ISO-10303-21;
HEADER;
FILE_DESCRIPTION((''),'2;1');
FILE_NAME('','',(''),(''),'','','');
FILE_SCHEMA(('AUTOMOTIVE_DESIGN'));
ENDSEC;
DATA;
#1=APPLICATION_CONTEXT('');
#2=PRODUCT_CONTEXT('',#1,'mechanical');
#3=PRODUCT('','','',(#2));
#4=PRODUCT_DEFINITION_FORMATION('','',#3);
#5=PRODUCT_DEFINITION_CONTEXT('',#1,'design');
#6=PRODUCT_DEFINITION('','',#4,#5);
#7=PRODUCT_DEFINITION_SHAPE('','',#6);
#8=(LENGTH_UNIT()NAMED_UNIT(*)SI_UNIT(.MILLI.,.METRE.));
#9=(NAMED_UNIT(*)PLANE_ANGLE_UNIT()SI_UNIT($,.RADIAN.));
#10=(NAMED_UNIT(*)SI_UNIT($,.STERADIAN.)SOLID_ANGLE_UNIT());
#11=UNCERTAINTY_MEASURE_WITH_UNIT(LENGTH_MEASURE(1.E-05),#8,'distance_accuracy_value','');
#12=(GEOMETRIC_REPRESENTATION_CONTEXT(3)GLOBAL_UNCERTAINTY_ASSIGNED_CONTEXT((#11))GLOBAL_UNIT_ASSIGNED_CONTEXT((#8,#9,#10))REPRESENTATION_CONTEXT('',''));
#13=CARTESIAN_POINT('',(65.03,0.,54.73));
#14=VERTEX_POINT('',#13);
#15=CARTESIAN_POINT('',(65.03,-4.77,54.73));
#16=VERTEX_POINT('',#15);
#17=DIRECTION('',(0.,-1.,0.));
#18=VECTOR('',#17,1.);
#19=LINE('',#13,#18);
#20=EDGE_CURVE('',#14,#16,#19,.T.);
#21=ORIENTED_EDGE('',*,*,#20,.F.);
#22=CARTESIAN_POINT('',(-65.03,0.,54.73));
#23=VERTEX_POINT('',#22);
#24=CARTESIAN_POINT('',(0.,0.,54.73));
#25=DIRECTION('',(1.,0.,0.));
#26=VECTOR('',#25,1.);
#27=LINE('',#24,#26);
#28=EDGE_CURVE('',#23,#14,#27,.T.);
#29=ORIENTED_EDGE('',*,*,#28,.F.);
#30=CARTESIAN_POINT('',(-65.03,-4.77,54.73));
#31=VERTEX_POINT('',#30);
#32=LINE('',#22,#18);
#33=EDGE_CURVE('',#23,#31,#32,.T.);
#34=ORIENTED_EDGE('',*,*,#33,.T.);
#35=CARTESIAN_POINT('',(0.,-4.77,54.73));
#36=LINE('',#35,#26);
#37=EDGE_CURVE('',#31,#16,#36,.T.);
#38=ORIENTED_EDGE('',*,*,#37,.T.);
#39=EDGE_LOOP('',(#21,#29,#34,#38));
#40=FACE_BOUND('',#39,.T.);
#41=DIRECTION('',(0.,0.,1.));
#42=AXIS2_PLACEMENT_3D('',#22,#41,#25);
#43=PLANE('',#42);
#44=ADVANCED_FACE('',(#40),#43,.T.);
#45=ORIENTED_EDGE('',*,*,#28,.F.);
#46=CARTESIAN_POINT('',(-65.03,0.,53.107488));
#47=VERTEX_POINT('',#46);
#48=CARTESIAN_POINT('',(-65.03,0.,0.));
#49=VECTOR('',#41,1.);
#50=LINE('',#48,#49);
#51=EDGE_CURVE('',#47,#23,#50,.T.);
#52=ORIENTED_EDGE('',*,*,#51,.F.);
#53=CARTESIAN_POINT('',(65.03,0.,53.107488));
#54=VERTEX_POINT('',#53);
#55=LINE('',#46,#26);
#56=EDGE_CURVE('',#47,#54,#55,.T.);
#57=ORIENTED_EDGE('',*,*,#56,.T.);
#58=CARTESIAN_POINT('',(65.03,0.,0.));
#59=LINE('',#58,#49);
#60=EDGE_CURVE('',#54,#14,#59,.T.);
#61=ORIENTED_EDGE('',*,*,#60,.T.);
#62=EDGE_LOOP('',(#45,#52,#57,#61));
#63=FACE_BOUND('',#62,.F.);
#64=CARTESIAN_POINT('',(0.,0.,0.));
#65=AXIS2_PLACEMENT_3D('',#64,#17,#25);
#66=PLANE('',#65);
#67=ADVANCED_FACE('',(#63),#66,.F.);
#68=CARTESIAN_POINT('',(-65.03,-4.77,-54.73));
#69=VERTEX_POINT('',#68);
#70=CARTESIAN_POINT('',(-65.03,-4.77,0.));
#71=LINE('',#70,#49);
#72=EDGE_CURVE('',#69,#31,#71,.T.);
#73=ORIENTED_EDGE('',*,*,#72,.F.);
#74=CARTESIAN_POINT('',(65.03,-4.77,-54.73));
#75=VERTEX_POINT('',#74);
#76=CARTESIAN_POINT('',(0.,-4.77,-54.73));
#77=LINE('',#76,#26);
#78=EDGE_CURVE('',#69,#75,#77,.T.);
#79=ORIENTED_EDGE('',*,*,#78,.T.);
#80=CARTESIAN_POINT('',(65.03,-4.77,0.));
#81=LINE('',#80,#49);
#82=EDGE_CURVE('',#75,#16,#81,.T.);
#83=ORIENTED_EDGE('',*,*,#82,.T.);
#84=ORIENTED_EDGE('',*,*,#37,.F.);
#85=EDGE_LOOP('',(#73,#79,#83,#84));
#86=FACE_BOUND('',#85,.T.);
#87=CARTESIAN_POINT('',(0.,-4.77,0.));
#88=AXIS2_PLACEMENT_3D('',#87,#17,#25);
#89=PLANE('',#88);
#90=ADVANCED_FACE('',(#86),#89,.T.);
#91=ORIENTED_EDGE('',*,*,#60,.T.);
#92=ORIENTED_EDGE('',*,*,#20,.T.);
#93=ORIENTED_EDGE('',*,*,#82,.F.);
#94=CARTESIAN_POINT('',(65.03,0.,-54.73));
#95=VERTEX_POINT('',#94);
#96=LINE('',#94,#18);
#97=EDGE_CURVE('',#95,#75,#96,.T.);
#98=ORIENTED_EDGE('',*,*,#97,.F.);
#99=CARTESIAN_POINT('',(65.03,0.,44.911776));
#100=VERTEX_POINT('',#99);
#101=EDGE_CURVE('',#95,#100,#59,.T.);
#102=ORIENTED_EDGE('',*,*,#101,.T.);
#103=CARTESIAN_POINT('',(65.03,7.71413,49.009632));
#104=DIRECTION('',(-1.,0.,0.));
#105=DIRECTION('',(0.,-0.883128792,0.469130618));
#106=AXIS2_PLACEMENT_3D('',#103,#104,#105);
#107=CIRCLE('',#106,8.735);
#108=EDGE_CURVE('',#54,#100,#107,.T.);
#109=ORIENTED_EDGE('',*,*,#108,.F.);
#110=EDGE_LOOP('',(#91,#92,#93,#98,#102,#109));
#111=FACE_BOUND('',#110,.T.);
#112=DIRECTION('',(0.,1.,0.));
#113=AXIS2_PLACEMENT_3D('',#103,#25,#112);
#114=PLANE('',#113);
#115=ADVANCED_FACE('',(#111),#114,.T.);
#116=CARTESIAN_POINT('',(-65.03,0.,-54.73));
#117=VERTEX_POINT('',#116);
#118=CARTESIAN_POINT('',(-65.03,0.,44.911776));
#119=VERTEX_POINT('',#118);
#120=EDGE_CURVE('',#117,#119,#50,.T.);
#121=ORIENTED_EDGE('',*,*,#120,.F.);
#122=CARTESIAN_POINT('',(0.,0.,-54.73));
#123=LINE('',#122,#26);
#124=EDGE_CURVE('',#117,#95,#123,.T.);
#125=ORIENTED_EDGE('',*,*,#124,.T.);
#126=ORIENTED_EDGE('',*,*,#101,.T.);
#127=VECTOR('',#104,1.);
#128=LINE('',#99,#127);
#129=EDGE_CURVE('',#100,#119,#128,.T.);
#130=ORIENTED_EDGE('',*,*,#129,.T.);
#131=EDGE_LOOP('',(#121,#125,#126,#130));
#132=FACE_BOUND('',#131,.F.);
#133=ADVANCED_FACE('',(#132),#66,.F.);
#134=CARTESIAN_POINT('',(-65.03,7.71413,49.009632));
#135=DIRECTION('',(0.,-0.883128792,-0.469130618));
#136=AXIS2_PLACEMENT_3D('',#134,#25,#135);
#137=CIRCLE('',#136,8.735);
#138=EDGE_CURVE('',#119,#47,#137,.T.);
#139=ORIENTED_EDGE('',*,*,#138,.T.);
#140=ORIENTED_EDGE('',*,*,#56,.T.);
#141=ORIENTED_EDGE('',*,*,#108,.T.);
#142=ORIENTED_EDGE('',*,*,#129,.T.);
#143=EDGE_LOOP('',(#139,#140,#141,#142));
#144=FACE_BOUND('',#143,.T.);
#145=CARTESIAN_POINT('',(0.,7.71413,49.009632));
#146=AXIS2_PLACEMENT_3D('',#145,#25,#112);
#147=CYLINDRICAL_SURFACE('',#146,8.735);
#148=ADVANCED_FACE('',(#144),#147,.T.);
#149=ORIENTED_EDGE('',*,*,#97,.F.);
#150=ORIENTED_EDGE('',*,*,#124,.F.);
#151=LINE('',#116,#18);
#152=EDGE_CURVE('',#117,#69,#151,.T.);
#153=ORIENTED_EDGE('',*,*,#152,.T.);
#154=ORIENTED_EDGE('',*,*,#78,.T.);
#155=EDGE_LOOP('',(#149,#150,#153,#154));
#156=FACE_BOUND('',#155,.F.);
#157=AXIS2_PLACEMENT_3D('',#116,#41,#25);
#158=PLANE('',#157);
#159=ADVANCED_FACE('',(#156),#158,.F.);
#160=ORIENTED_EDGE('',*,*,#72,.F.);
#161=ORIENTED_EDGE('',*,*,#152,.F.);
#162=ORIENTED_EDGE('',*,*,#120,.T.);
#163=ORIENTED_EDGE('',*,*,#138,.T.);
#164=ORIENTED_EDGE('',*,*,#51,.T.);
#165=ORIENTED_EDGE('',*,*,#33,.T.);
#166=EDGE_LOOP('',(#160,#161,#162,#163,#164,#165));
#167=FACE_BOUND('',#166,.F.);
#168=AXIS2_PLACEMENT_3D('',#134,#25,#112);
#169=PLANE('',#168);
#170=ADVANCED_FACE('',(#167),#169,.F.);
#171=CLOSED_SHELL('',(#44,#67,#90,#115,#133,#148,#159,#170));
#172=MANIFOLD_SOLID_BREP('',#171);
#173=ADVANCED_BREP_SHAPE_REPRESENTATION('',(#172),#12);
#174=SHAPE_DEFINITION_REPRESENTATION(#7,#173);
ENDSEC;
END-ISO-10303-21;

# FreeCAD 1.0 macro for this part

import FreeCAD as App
import Part
import Sketcher
Q = App.Units.Quantity


def add_polygon(sketch, points):
    """Adds a closed chain of lines whose ends are joined by coincident constraints."""
    first, n = sketch.GeometryCount, len(points)
    for a, b in zip(points, points[1:] + points[:1]):
        sketch.addGeometry(Part.LineSegment(App.Vector(*a, 0), App.Vector(*b, 0)), False)
    for i in range(n):
        sketch.addConstraint(Sketcher.Constraint("Coincident", first + i, 2, first + (i + 1) % n, 1))

doc = App.newDocument("Part")
body = doc.addObject("PartDesign::Body", "Body")

sketch1 = body.newObject("Sketcher::SketchObject", "Sketch")
sketch1.AttachmentSupport = (doc.getObject("XZ_Plane"), [""])
sketch1.MapMode = "FlatFace"
add_polygon(sketch1, [(-65, 55), (-65, -55), (65, -55), (65, 55)])
sketch1.addConstraint([
    Sketcher.Constraint("Vertical", 0),
    Sketcher.Constraint("Horizontal", 1),
    Sketcher.Constraint("Vertical", 2),
    Sketcher.Constraint("Horizontal", 3),
    Sketcher.Constraint("Symmetric", 0, 2, 2, 2, -1, 1),
    Sketcher.Constraint("DistanceX", 1, 1, 1, 2, Q("130.06 mm")),
    Sketcher.Constraint("DistanceY", 0, 2, 0, 1, Q("109.46 mm")),
])
pad1 = body.newObject("PartDesign::Pad", "Pad")
pad1.Profile = sketch1
pad1.Length = 4.77

sketch2 = body.newObject("Sketcher::SketchObject", "Sketch001")
sketch2.AttachmentSupport = (doc.getObject("YZ_Plane"), [""])
sketch2.MapMode = "FlatFace"
sketch2.addGeometry(Part.Circle(App.Vector(8, 49, 0), App.Vector(0, 0, 1), 9), False)
sketch2.addConstraint([
    Sketcher.Constraint("Diameter", 0, Q("17.47 mm")),
    Sketcher.Constraint("DistanceX", -1, 1, 0, 3, Q("7.71413 mm")),
    Sketcher.Constraint("DistanceY", -1, 1, 0, 3, Q("49.009632 mm")),
])
pad2 = body.newObject("PartDesign::Pad", "Pad001")
pad2.Profile = sketch2
pad2.Type = "TwoLengths"
pad2.Length = 65.03
pad2.Length2 = 65.03

doc.recompute()
